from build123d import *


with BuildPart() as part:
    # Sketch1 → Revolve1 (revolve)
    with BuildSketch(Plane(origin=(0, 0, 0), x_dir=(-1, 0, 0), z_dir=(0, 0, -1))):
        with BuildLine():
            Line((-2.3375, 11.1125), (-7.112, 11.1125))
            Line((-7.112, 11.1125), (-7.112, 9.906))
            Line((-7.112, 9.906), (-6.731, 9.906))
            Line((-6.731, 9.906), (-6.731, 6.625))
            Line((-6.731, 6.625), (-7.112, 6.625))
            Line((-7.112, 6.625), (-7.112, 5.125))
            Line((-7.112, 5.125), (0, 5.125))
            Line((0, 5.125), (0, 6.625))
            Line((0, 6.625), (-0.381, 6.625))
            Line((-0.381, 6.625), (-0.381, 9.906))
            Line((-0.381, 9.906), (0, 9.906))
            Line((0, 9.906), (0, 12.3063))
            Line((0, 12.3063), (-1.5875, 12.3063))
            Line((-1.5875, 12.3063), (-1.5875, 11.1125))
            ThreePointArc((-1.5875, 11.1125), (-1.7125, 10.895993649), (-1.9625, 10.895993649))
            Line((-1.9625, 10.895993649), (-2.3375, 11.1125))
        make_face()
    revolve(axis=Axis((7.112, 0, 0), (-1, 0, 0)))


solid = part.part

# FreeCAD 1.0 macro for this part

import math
import FreeCAD as App
import Part
import Sketcher
Q = App.Units.Quantity

doc = App.newDocument("Part")
body = doc.addObject("PartDesign::Body", "Body")

# Sketch on XY plane
sketch1 = body.newObject("Sketcher::SketchObject", "Sketch")
sketch1.AttachmentSupport = (doc.getObject("XY_Plane"), [""])
sketch1.MapMode = "FlatFace"
sketch1.addGeometry(Part.LineSegment(App.Vector(2.34, 11.11, 0), App.Vector(7.11, 11.11, 0)), False)
sketch1.addGeometry(Part.LineSegment(App.Vector(7.11, 11.11, 0), App.Vector(7.11, 9.91, 0)), False)
sketch1.addGeometry(Part.LineSegment(App.Vector(7.11, 9.91, 0), App.Vector(6.73, 9.91, 0)), False)
sketch1.addGeometry(Part.LineSegment(App.Vector(6.73, 9.91, 0), App.Vector(6.73, 6.62, 0)), False)
sketch1.addGeometry(Part.LineSegment(App.Vector(6.73, 6.62, 0), App.Vector(7.11, 6.62, 0)), False)
sketch1.addGeometry(Part.LineSegment(App.Vector(7.11, 6.62, 0), App.Vector(7.11, 5.12, 0)), False)
sketch1.addGeometry(Part.LineSegment(App.Vector(7.11, 5.12, 0), App.Vector(0, 5.12, 0)), False)
sketch1.addGeometry(Part.LineSegment(App.Vector(0, 5.12, 0), App.Vector(0, 6.62, 0)), False)
sketch1.addGeometry(Part.LineSegment(App.Vector(0, 6.62, 0), App.Vector(0.38, 6.62, 0)), False)
sketch1.addGeometry(Part.LineSegment(App.Vector(0.38, 6.62, 0), App.Vector(0.38, 9.91, 0)), False)
sketch1.addGeometry(Part.LineSegment(App.Vector(0.38, 9.91, 0), App.Vector(0, 9.91, 0)), False)
sketch1.addGeometry(Part.LineSegment(App.Vector(0, 9.91, 0), App.Vector(0, 12.31, 0)), False)
sketch1.addGeometry(Part.LineSegment(App.Vector(0, 12.31, 0), App.Vector(1.59, 12.31, 0)), False)
sketch1.addGeometry(Part.LineSegment(App.Vector(1.59, 12.31, 0), App.Vector(1.59, 11.11, 0)), False)
sketch1.addGeometry(Part.ArcOfCircle(Part.Circle(App.Vector(1.84, 11.11, 0), App.Vector(0, 0, 1), 0.25), math.radians(180), math.radians(300)), False)
sketch1.addGeometry(Part.LineSegment(App.Vector(1.96, 10.9, 0), App.Vector(2.34, 11.11, 0)), False)
sketch1.addConstraint(Sketcher.Constraint("Coincident", 0, 2, 1, 1))
sketch1.addConstraint(Sketcher.Constraint("Coincident", 1, 2, 2, 1))
sketch1.addConstraint(Sketcher.Constraint("Coincident", 2, 2, 3, 1))
sketch1.addConstraint(Sketcher.Constraint("Coincident", 3, 2, 4, 1))
sketch1.addConstraint(Sketcher.Constraint("Coincident", 4, 2, 5, 1))
sketch1.addConstraint(Sketcher.Constraint("Coincident", 5, 2, 6, 1))
sketch1.addConstraint(Sketcher.Constraint("Coincident", 6, 2, 7, 1))
sketch1.addConstraint(Sketcher.Constraint("Coincident", 7, 2, 8, 1))
sketch1.addConstraint(Sketcher.Constraint("Coincident", 8, 2, 9, 1))
sketch1.addConstraint(Sketcher.Constraint("Coincident", 9, 2, 10, 1))
sketch1.addConstraint(Sketcher.Constraint("Coincident", 10, 2, 11, 1))
sketch1.addConstraint(Sketcher.Constraint("Coincident", 11, 2, 12, 1))
sketch1.addConstraint(Sketcher.Constraint("Coincident", 12, 2, 13, 1))
sketch1.addConstraint(Sketcher.Constraint("Tangent", 13, 2, 14, 1))
sketch1.addConstraint(Sketcher.Constraint("Tangent", 14, 2, 15, 1))
sketch1.addConstraint(Sketcher.Constraint("Coincident", 15, 2, 0, 1))
sketch1.addConstraint(Sketcher.Constraint("Horizontal", 0))
sketch1.addConstraint(Sketcher.Constraint("Vertical", 1))
sketch1.addConstraint(Sketcher.Constraint("Horizontal", 2))
sketch1.addConstraint(Sketcher.Constraint("Vertical", 3))
sketch1.addConstraint(Sketcher.Constraint("Horizontal", 4))
sketch1.addConstraint(Sketcher.Constraint("Vertical", 5))
sketch1.addConstraint(Sketcher.Constraint("Horizontal", 6))
sketch1.addConstraint(Sketcher.Constraint("Vertical", 7))
sketch1.addConstraint(Sketcher.Constraint("Horizontal", 8))
sketch1.addConstraint(Sketcher.Constraint("Vertical", 9))
sketch1.addConstraint(Sketcher.Constraint("Horizontal", 10))
sketch1.addConstraint(Sketcher.Constraint("Vertical", 11))
sketch1.addConstraint(Sketcher.Constraint("Horizontal", 12))
sketch1.addConstraint(Sketcher.Constraint("Vertical", 13))
sketch1.addConstraint(Sketcher.Constraint("PointOnObject", 6, 2, -2))
sketch1.addConstraint(Sketcher.Constraint("PointOnObject", 10, 2, -2))
sketch1.addConstraint(Sketcher.Constraint("Horizontal", 14, 3, 0, 2))
sketch1.addConstraint(Sketcher.Constraint("Horizontal", 4, 2, 7, 2))
sketch1.addConstraint(Sketcher.Constraint("Horizontal", 2, 2, 9, 2))
sketch1.addConstraint(Sketcher.Constraint("Vertical", 1, 2, 4, 2))
sketch1.addConstraint(Sketcher.Constraint("Equal", 4, 8))
sketch1.addConstraint(Sketcher.Constraint("Angle", 15, Q("30 deg")))
sketch1.addConstraint(Sketcher.Constraint("DistanceX", 6, 2, 6, 1, Q("0.28 in")))
sketch1.addConstraint(Sketcher.Constraint("DistanceX", 2, 2, 2, 1, Q("0.015 in")))
sketch1.addConstraint(Sketcher.Constraint("DistanceX", 12, 1, 12, 2, Q("0.0625 in")))
sketch1.addConstraint(Sketcher.Constraint("DistanceY", 13, 2, 13, 1, Q("0.047 in")))
sketch1.addConstraint(Sketcher.Constraint("DistanceY", -1, 1, 1, 2, Q("0.39 in")))
sketch1.addConstraint(Sketcher.Constraint("Radius", 14, Q("0.25 mm")))
sketch1.addConstraint(Sketcher.Constraint("DistanceY", 1, 2, 1, 1, Q("0.0475 in")))
sketch1.addConstraint(Sketcher.Constraint("DistanceY", 3, 2, 3, 1, Q("3.281 mm")))
sketch1.addConstraint(Sketcher.Constraint("DistanceY", 5, 2, 5, 1, Q("1.5 mm")))
revolution = body.newObject("PartDesign::Revolution", "Revolution")
revolution.Profile = sketch1
revolution.ReferenceAxis = (sketch1, ["H_Axis"])
revolution.Angle = 360

doc.recompute()
